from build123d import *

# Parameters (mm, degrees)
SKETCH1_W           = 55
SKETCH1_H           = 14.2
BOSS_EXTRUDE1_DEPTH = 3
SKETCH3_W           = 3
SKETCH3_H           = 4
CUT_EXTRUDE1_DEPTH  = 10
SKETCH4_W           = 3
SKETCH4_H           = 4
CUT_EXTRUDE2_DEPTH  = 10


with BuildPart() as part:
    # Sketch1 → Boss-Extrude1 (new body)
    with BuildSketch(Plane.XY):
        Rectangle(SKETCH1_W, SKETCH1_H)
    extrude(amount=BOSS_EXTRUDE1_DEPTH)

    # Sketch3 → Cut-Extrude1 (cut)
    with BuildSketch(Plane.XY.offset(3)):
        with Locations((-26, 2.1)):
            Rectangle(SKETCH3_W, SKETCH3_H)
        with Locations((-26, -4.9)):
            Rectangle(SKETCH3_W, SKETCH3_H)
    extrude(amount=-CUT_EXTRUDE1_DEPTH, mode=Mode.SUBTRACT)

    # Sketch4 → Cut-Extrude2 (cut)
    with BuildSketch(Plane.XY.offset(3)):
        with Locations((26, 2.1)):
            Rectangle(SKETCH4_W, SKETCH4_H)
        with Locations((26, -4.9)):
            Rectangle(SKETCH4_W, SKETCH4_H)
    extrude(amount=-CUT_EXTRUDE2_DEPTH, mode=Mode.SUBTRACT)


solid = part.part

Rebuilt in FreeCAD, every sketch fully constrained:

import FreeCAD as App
import Part
import Sketcher
Q = App.Units.Quantity


def add_polygon(sketch, points):
    """Adds a closed chain of lines whose ends are joined by coincident constraints."""
    first, n = sketch.GeometryCount, len(points)
    for a, b in zip(points, points[1:] + points[:1]):
        sketch.addGeometry(Part.LineSegment(App.Vector(*a, 0), App.Vector(*b, 0)), False)
    for i in range(n):
        sketch.addConstraint(Sketcher.Constraint("Coincident", first + i, 2, first + (i + 1) % n, 1))

doc = App.newDocument("Part")
body = doc.addObject("PartDesign::Body", "Body")

sketch1 = body.newObject("Sketcher::SketchObject", "Sketch")
sketch1.AttachmentSupport = (doc.getObject("XY_Plane"), [""])
sketch1.MapMode = "FlatFace"
add_polygon(sketch1, [(-27.5, 7.1), (-27.5, -7.1), (27.5, -7.1), (27.5, 7.1)])
sketch1.addConstraint([
    Sketcher.Constraint("Vertical", 0),
    Sketcher.Constraint("Horizontal", 1),
    Sketcher.Constraint("Vertical", 2),
    Sketcher.Constraint("Horizontal", 3),
    Sketcher.Constraint("Symmetric", 0, 2, 2, 2, -1, 1),
    Sketcher.Constraint("DistanceX", 1, 1, 1, 2, Q("55 mm")),
    Sketcher.Constraint("DistanceY", 0, 2, 0, 1, Q("14.2 mm")),
])
pad1 = body.newObject("PartDesign::Pad", "Pad")
pad1.Profile = sketch1
pad1.Length = 3

sketch2 = body.newObject("Sketcher::SketchObject", "Sketch001")
sketch2.AttachmentSupport = (doc.getObject("XY_Plane"), [""])
sketch2.MapMode = "FlatFace"
sketch2.AttachmentOffset = App.Placement(App.Vector(0, 0, 3), App.Rotation())
add_polygon(sketch2, [(-27.5, 4.1), (-27.5, 0.1), (-24.5, 0.1), (-24.5, 4.1)])
add_polygon(sketch2, [(-27.5, -2.9), (-27.5, -6.9), (-24.5, -6.9), (-24.5, -2.9)])
sketch2.addConstraint([
    Sketcher.Constraint("Vertical", 0),
    Sketcher.Constraint("Horizontal", 1),
    Sketcher.Constraint("Vertical", 2),
    Sketcher.Constraint("Horizontal", 3),
    Sketcher.Constraint("Vertical", 4),
    Sketcher.Constraint("Horizontal", 5),
    Sketcher.Constraint("Vertical", 6),
    Sketcher.Constraint("Horizontal", 7),
    Sketcher.Constraint("Vertical", 3, 2, 4, 2),
    Sketcher.Constraint("Vertical", 2, 2, 5, 2),
    Sketcher.Constraint("Equal", 2, 4),
    Sketcher.Constraint("DistanceX", 1, 1, 1, 2, Q("3 mm")),
    Sketcher.Constraint("DistanceY", 0, 2, 0, 1, Q("4 mm")),
    Sketcher.Constraint("DistanceY", 4, 2, 0, 2, Q("7 mm")),
    Sketcher.Constraint("DistanceX", 0, 2, -1, 1, Q("27.5 mm")),
    Sketcher.Constraint("DistanceY", -1, 1, 0, 2, Q("0.1 mm")),
])
pocket1 = body.newObject("PartDesign::Pocket", "Pocket")
pocket1.Profile = sketch2
pocket1.Length = 10

sketch3 = body.newObject("Sketcher::SketchObject", "Sketch002")
sketch3.AttachmentSupport = (doc.getObject("XY_Plane"), [""])
sketch3.MapMode = "FlatFace"
sketch3.AttachmentOffset = App.Placement(App.Vector(0, 0, 3), App.Rotation())
add_polygon(sketch3, [(24.5, 4.1), (24.5, 0.1), (27.5, 0.1), (27.5, 4.1)])
add_polygon(sketch3, [(24.5, -2.9), (24.5, -6.9), (27.5, -6.9), (27.5, -2.9)])
sketch3.addConstraint([
    Sketcher.Constraint("Vertical", 0),
    Sketcher.Constraint("Horizontal", 1),
    Sketcher.Constraint("Vertical", 2),
    Sketcher.Constraint("Horizontal", 3),
    Sketcher.Constraint("Vertical", 4),
    Sketcher.Constraint("Horizontal", 5),
    Sketcher.Constraint("Vertical", 6),
    Sketcher.Constraint("Horizontal", 7),
    Sketcher.Constraint("Vertical", 3, 2, 4, 2),
    Sketcher.Constraint("Vertical", 2, 2, 5, 2),
    Sketcher.Constraint("Equal", 2, 4),
    Sketcher.Constraint("DistanceX", 1, 1, 1, 2, Q("3 mm")),
    Sketcher.Constraint("DistanceY", 0, 2, 0, 1, Q("4 mm")),
    Sketcher.Constraint("DistanceY", 4, 2, 0, 2, Q("7 mm")),
    Sketcher.Constraint("DistanceX", -1, 1, 0, 2, Q("24.5 mm")),
    Sketcher.Constraint("DistanceY", -1, 1, 0, 2, Q("0.1 mm")),
])
pocket2 = body.newObject("PartDesign::Pocket", "Pocket001")
pocket2.Profile = sketch3
pocket2.Length = 10

doc.recompute()
